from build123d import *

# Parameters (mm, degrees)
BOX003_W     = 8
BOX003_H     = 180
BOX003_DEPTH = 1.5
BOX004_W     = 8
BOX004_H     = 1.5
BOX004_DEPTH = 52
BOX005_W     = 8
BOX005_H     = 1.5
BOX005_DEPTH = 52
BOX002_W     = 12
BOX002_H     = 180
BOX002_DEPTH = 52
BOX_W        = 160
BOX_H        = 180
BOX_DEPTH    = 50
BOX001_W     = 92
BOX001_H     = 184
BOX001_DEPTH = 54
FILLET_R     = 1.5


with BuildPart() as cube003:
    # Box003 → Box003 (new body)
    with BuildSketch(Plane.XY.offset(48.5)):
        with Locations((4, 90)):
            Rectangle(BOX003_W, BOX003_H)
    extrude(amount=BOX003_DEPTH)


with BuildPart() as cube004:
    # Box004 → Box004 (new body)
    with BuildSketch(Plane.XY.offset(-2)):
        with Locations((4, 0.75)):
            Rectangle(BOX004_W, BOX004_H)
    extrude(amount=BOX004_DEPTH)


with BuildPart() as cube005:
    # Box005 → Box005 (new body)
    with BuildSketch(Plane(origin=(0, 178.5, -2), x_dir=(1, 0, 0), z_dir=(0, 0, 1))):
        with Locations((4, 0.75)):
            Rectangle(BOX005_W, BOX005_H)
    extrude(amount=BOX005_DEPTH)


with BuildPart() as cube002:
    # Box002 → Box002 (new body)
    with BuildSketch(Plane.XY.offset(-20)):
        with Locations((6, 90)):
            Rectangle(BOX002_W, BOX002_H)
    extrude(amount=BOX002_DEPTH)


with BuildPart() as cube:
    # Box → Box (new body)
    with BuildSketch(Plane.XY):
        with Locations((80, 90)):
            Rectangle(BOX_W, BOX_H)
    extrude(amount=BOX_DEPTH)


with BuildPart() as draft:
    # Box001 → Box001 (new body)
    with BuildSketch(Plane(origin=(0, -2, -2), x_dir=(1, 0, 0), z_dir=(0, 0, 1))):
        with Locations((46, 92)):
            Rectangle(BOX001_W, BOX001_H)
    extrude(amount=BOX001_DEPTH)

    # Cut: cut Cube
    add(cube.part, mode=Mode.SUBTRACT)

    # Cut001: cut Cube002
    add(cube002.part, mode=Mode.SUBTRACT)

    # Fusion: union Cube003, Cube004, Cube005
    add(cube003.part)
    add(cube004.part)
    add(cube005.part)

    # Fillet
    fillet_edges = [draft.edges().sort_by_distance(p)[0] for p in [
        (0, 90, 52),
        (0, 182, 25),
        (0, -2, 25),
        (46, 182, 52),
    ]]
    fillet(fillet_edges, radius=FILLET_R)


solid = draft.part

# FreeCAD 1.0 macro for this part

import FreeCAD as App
import Part
import Sketcher

V = App.Vector


def edges_at(feature, points):
    """Names of the edges that pass closest to the given points."""
    edges = feature.Shape.Edges
    near = lambda p: min(range(len(edges)), key=lambda i: edges[i].distToShape(Part.Vertex(*p))[0])
    return sorted({f"Edge{near(p) + 1}" for p in points})

doc = App.newDocument("Part")
body = doc.addObject("PartDesign::Body", "Body")

# Sketch on XY plane
sketch1 = doc.addObject("Sketcher::SketchObject", "Sketch")
body.addObject(sketch1)
sketch1.AttachmentSupport = (doc.XY_Plane, [""])
sketch1.MapMode = "FlatFace"
sketch1.AttachmentOffset = App.Placement(V(0, 0, 48.5), App.Rotation())
sketch1.addGeometry([
    Part.LineSegment(V(0, 180, 0), V(0, 0, 0)),
    Part.LineSegment(V(0, 0, 0), V(8, 0, 0)),
    Part.LineSegment(V(8, 0, 0), V(8, 180, 0)),
    Part.LineSegment(V(8, 180, 0), V(0, 180, 0)),
], False)
sketch1.addConstraint([
    Sketcher.Constraint("Coincident", 0, 2, 1, 1),
    Sketcher.Constraint("Coincident", 1, 2, 2, 1),
    Sketcher.Constraint("Coincident", 2, 2, 3, 1),
    Sketcher.Constraint("Coincident", 3, 2, 0, 1),
    Sketcher.Constraint("Vertical", 0),
    Sketcher.Constraint("Horizontal", 1),
    Sketcher.Constraint("Vertical", 2),
    Sketcher.Constraint("Horizontal", 3),
    Sketcher.Constraint("Coincident", 0, 2, -1, 1),
    Sketcher.Constraint("DistanceX", 1, 1, 1, 2, 8.0),
    Sketcher.Constraint("DistanceY", 0, 2, 0, 1, 180.0),
])
pad1 = doc.addObject("PartDesign::Pad", "Pad")
body.addObject(pad1)
pad1.Profile = sketch1
pad1.Length = 1.5
body2 = doc.addObject("PartDesign::Body", "Body001")

# Sketch on XY plane
sketch2 = doc.addObject("Sketcher::SketchObject", "Sketch001")
body2.addObject(sketch2)
sketch2.AttachmentSupport = (doc.getObject("XY_Plane001"), [""])
sketch2.MapMode = "FlatFace"
sketch2.AttachmentOffset = App.Placement(V(0, 0, -2), App.Rotation())
sketch2.addGeometry([
    Part.LineSegment(V(0, 1.5, 0), V(0, 0, 0)),
    Part.LineSegment(V(0, 0, 0), V(8, 0, 0)),
    Part.LineSegment(V(8, 0, 0), V(8, 1.5, 0)),
    Part.LineSegment(V(8, 1.5, 0), V(0, 1.5, 0)),
], False)
sketch2.addConstraint([
    Sketcher.Constraint("Coincident", 0, 2, 1, 1),
    Sketcher.Constraint("Coincident", 1, 2, 2, 1),
    Sketcher.Constraint("Coincident", 2, 2, 3, 1),
    Sketcher.Constraint("Coincident", 3, 2, 0, 1),
    Sketcher.Constraint("Vertical", 0),
    Sketcher.Constraint("Horizontal", 1),
    Sketcher.Constraint("Vertical", 2),
    Sketcher.Constraint("Horizontal", 3),
    Sketcher.Constraint("Coincident", 0, 2, -1, 1),
    Sketcher.Constraint("DistanceX", 1, 1, 1, 2, 8.0),
    Sketcher.Constraint("DistanceY", 0, 2, 0, 1, 1.5),
])
pad2 = doc.addObject("PartDesign::Pad", "Pad001")
body2.addObject(pad2)
pad2.Profile = sketch2
pad2.Length = 52
body3 = doc.addObject("PartDesign::Body", "Body002")

# Sketch on XY plane
sketch3 = doc.addObject("Sketcher::SketchObject", "Sketch002")
body3.addObject(sketch3)
sketch3.AttachmentSupport = (doc.getObject("XY_Plane002"), [""])
sketch3.MapMode = "FlatFace"
sketch3.AttachmentOffset = App.Placement(V(0, 0, -2), App.Rotation())
sketch3.addGeometry([
    Part.LineSegment(V(0, 180, 0), V(0, 178.5, 0)),
    Part.LineSegment(V(0, 178.5, 0), V(8, 178.5, 0)),
    Part.LineSegment(V(8, 178.5, 0), V(8, 180, 0)),
    Part.LineSegment(V(8, 180, 0), V(0, 180, 0)),
], False)
sketch3.addConstraint([
    Sketcher.Constraint("Coincident", 0, 2, 1, 1),
    Sketcher.Constraint("Coincident", 1, 2, 2, 1),
    Sketcher.Constraint("Coincident", 2, 2, 3, 1),
    Sketcher.Constraint("Coincident", 3, 2, 0, 1),
    Sketcher.Constraint("Vertical", 0),
    Sketcher.Constraint("Horizontal", 1),
    Sketcher.Constraint("Vertical", 2),
    Sketcher.Constraint("Horizontal", 3),
    Sketcher.Constraint("PointOnObject", 0, 2, -2),
    Sketcher.Constraint("DistanceX", 1, 1, 1, 2, 8.0),
    Sketcher.Constraint("DistanceY", 0, 2, 0, 1, 1.5),
    Sketcher.Constraint("DistanceY", -1, 1, 2, 2, 180.0),
])
pad3 = doc.addObject("PartDesign::Pad", "Pad002")
body3.addObject(pad3)
pad3.Profile = sketch3
pad3.Length = 52
body4 = doc.addObject("PartDesign::Body", "Body003")

# Sketch on XY plane
sketch4 = doc.addObject("Sketcher::SketchObject", "Sketch003")
body4.addObject(sketch4)
sketch4.AttachmentSupport = (doc.getObject("XY_Plane003"), [""])
sketch4.MapMode = "FlatFace"
sketch4.AttachmentOffset = App.Placement(V(0, 0, -20), App.Rotation())
sketch4.addGeometry([
    Part.LineSegment(V(0, 180, 0), V(0, 0, 0)),
    Part.LineSegment(V(0, 0, 0), V(12, 0, 0)),
    Part.LineSegment(V(12, 0, 0), V(12, 180, 0)),
    Part.LineSegment(V(12, 180, 0), V(0, 180, 0)),
], False)
sketch4.addConstraint([
    Sketcher.Constraint("Coincident", 0, 2, 1, 1),
    Sketcher.Constraint("Coincident", 1, 2, 2, 1),
    Sketcher.Constraint("Coincident", 2, 2, 3, 1),
    Sketcher.Constraint("Coincident", 3, 2, 0, 1),
    Sketcher.Constraint("Vertical", 0),
    Sketcher.Constraint("Horizontal", 1),
    Sketcher.Constraint("Vertical", 2),
    Sketcher.Constraint("Horizontal", 3),
    Sketcher.Constraint("Coincident", 0, 2, -1, 1),
    Sketcher.Constraint("DistanceX", 1, 1, 1, 2, 12.0),
    Sketcher.Constraint("DistanceY", 0, 2, 0, 1, 180.0),
])
pad4 = doc.addObject("PartDesign::Pad", "Pad003")
body4.addObject(pad4)
pad4.Profile = sketch4
pad4.Length = 52
body5 = doc.addObject("PartDesign::Body", "Body004")

# Sketch on XY plane
sketch5 = doc.addObject("Sketcher::SketchObject", "Sketch004")
body5.addObject(sketch5)
sketch5.AttachmentSupport = (doc.getObject("XY_Plane004"), [""])
sketch5.MapMode = "FlatFace"
sketch5.addGeometry([
    Part.LineSegment(V(0, 180, 0), V(0, 0, 0)),
    Part.LineSegment(V(0, 0, 0), V(160, 0, 0)),
    Part.LineSegment(V(160, 0, 0), V(160, 180, 0)),
    Part.LineSegment(V(160, 180, 0), V(0, 180, 0)),
], False)
sketch5.addConstraint([
    Sketcher.Constraint("Coincident", 0, 2, 1, 1),
    Sketcher.Constraint("Coincident", 1, 2, 2, 1),
    Sketcher.Constraint("Coincident", 2, 2, 3, 1),
    Sketcher.Constraint("Coincident", 3, 2, 0, 1),
    Sketcher.Constraint("Vertical", 0),
    Sketcher.Constraint("Horizontal", 1),
    Sketcher.Constraint("Vertical", 2),
    Sketcher.Constraint("Horizontal", 3),
    Sketcher.Constraint("Coincident", 0, 2, -1, 1),
    Sketcher.Constraint("DistanceX", 1, 1, 1, 2, 160.0),
    Sketcher.Constraint("DistanceY", 0, 2, 0, 1, 180.0),
])
pad5 = doc.addObject("PartDesign::Pad", "Pad004")
body5.addObject(pad5)
pad5.Profile = sketch5
pad5.Length = 50
body6 = doc.addObject("PartDesign::Body", "Body005")

# Sketch on XY plane
sketch6 = doc.addObject("Sketcher::SketchObject", "Sketch005")
body6.addObject(sketch6)
sketch6.AttachmentSupport = (doc.getObject("XY_Plane005"), [""])
sketch6.MapMode = "FlatFace"
sketch6.AttachmentOffset = App.Placement(V(0, 0, -2), App.Rotation())
sketch6.addGeometry([
    Part.LineSegment(V(0, 182, 0), V(0, -2, 0)),
    Part.LineSegment(V(0, -2, 0), V(92, -2, 0)),
    Part.LineSegment(V(92, -2, 0), V(92, 182, 0)),
    Part.LineSegment(V(92, 182, 0), V(0, 182, 0)),
], False)
sketch6.addConstraint([
    Sketcher.Constraint("Coincident", 0, 2, 1, 1),
    Sketcher.Constraint("Coincident", 1, 2, 2, 1),
    Sketcher.Constraint("Coincident", 2, 2, 3, 1),
    Sketcher.Constraint("Coincident", 3, 2, 0, 1),
    Sketcher.Constraint("Vertical", 0),
    Sketcher.Constraint("Horizontal", 1),
    Sketcher.Constraint("Vertical", 2),
    Sketcher.Constraint("Horizontal", 3),
    Sketcher.Constraint("PointOnObject", 0, 2, -2),
    Sketcher.Constraint("DistanceX", 1, 1, 1, 2, 92.0),
    Sketcher.Constraint("DistanceY", 0, 2, 0, 1, 184.0),
    Sketcher.Constraint("DistanceY", 0, 2, -1, 1, 2.0),
])
pad6 = doc.addObject("PartDesign::Pad", "Pad005")
body6.addObject(pad6)
pad6.Profile = sketch6
pad6.Length = 54
doc.recompute()

boolean = doc.addObject("PartDesign::Boolean", "Boolean")
body6.addObject(boolean)
boolean.Type = "Cut"
boolean.addObjects([body5])
doc.recompute()

boolean2 = doc.addObject("PartDesign::Boolean", "Boolean001")
body6.addObject(boolean2)
boolean2.Type = "Cut"
boolean2.addObjects([body4])
doc.recompute()

boolean3 = doc.addObject("PartDesign::Boolean", "Boolean002")
body6.addObject(boolean3)
boolean3.Type = "Fuse"
boolean3.addObjects([body])
doc.recompute()

boolean4 = doc.addObject("PartDesign::Boolean", "Boolean003")
body6.addObject(boolean4)
boolean4.Type = "Fuse"
boolean4.addObjects([body2])
doc.recompute()

boolean5 = doc.addObject("PartDesign::Boolean", "Boolean004")
body6.addObject(boolean5)
boolean5.Type = "Fuse"
boolean5.addObjects([body3])
doc.recompute()

fillet = doc.addObject("PartDesign::Fillet", "Fillet")
body6.addObject(fillet)
fillet.Base = (boolean5, edges_at(boolean5, [
    (0, 90, 52),
    (0, 182, 25),
    (0, -2, 25),
    (46, 182, 52),
]))
fillet.Radius = 1.5

doc.recompute()
